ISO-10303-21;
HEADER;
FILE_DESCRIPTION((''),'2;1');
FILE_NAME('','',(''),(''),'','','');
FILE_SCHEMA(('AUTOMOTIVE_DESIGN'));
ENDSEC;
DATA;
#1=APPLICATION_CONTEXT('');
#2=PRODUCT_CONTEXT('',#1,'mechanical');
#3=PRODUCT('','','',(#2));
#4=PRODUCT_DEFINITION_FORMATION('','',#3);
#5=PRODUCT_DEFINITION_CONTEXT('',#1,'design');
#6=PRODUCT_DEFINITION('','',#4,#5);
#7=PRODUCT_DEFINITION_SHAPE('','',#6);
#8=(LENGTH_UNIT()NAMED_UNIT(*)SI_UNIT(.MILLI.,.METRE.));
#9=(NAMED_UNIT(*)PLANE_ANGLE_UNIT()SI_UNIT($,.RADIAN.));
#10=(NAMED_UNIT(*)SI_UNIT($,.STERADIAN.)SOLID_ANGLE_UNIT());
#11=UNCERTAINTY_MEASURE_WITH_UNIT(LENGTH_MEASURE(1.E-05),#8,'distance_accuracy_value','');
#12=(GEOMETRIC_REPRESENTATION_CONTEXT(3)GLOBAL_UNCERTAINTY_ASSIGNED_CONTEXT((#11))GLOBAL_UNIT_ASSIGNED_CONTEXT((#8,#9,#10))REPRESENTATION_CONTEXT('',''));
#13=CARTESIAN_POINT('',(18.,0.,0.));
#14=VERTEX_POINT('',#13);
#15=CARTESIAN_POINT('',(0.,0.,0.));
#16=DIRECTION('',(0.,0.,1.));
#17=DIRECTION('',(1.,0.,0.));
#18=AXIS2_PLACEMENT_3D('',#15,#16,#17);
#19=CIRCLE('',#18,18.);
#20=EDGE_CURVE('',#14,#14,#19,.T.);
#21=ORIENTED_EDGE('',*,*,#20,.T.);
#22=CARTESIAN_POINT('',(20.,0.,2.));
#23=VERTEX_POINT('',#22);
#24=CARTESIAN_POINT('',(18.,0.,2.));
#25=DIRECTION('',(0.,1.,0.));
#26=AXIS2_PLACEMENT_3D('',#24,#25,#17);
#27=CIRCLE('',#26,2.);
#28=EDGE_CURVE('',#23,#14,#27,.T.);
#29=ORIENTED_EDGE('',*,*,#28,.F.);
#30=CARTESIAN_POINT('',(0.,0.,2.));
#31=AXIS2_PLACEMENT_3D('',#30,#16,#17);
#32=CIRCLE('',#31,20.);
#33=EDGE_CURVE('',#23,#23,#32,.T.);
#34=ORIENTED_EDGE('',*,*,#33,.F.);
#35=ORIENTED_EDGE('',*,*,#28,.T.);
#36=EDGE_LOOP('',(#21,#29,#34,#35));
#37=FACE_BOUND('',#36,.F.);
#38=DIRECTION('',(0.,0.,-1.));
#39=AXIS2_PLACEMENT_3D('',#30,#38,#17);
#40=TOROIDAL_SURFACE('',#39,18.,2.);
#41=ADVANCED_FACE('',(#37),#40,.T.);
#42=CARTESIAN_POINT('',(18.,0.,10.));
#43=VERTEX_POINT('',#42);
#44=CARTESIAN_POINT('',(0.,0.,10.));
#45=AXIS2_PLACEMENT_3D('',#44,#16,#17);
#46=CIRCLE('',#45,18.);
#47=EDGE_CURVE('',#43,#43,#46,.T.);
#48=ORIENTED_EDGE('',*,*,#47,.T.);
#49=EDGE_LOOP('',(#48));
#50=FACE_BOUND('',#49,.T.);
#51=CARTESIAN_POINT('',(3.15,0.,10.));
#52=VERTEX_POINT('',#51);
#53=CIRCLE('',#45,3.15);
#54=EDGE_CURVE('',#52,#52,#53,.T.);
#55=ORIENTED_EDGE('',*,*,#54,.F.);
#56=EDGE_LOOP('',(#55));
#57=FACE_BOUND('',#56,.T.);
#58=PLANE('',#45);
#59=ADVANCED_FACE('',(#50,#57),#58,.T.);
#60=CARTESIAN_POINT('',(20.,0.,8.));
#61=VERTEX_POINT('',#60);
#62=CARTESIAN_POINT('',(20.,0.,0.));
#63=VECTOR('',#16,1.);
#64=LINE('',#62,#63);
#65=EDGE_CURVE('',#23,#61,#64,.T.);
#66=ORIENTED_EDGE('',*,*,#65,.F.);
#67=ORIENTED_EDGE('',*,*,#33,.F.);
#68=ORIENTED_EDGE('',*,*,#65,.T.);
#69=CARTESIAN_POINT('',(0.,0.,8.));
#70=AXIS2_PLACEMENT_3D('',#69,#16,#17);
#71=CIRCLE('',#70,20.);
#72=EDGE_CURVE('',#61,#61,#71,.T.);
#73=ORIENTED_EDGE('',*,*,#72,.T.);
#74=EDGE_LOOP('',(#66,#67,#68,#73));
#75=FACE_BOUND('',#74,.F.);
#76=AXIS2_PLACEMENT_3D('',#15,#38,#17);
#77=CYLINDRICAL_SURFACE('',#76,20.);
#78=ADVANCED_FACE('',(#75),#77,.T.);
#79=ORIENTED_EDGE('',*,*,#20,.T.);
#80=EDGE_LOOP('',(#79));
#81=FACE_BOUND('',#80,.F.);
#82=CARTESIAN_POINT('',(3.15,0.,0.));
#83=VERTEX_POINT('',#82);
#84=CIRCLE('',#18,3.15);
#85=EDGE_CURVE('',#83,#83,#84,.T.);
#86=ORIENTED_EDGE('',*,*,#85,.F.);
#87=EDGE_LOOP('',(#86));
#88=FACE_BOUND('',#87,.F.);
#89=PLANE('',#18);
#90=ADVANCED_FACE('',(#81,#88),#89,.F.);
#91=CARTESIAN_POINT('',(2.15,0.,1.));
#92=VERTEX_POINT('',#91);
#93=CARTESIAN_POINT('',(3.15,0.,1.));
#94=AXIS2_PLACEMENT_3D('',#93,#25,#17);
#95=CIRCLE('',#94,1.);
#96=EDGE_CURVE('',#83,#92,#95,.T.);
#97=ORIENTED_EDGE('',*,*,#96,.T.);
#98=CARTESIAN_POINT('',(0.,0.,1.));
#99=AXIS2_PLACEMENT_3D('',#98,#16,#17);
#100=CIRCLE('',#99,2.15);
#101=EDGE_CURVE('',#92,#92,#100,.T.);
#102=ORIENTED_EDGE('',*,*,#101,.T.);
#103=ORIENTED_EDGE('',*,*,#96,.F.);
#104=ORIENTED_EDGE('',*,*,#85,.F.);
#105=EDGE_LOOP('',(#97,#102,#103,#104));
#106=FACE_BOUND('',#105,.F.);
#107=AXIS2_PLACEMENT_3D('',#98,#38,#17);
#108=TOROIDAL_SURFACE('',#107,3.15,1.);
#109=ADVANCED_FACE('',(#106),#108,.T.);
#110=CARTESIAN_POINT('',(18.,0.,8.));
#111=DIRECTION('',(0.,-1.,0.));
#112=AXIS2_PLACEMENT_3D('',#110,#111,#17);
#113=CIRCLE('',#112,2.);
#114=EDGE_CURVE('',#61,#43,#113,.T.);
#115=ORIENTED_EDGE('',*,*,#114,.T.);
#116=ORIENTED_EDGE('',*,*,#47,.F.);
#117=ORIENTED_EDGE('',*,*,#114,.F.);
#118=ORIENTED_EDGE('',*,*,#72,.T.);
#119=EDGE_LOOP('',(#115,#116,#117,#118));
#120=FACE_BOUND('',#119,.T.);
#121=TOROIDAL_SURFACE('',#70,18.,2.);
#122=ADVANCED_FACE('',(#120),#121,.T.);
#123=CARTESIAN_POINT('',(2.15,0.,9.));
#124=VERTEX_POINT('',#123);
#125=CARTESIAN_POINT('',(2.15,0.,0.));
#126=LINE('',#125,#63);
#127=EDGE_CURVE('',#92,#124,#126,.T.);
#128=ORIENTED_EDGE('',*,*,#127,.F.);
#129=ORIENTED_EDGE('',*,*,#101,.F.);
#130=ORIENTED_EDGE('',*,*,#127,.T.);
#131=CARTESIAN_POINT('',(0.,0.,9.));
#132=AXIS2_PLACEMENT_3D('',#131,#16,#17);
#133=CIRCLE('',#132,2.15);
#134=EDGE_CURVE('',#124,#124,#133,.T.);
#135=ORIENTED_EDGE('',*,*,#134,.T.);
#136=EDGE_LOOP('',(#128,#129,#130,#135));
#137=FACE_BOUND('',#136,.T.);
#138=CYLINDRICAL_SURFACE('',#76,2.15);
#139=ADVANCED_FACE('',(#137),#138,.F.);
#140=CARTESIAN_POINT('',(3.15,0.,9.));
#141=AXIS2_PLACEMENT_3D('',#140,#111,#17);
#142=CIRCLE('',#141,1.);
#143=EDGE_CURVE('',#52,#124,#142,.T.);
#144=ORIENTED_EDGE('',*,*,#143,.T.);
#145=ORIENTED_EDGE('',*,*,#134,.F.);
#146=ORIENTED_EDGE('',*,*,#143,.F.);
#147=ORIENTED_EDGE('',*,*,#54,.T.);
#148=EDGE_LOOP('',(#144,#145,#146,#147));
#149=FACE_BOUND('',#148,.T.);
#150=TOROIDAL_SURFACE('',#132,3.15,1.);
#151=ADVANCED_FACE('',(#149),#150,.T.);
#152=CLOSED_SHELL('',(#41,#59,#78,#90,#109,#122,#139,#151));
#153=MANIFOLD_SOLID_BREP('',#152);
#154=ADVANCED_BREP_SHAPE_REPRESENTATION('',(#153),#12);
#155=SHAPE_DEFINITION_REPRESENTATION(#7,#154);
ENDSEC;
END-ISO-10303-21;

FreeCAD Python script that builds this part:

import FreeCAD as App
import Part
import Sketcher
from FreeCAD import Vector
Q = App.Units.Quantity


def edges_at(feature, points):
    """Names of the edges that pass closest to the given points."""
    edges = feature.Shape.Edges
    near = lambda p: min(range(len(edges)), key=lambda i: edges[i].distToShape(Part.Vertex(*p))[0])
    return sorted({f"Edge{near(p) + 1}" for p in points})

doc = App.newDocument("Part")
body = doc.addObject("PartDesign::Body", "Body")

# Sketch on XY plane
sketch1 = body.newObject("Sketcher::SketchObject", "Sketch")
sketch1.AttachmentSupport = (doc.getObject("XY_Plane"), [""])
sketch1.MapMode = "FlatFace"
sketch1.addGeometry([
    Part.Circle(Vector(0, 0, 0), Vector(0, 0, 1), 20),
    Part.Circle(Vector(0, 0, 0), Vector(0, 0, 1), 2.15),
], False)
sketch1.addConstraint([
    Sketcher.Constraint("Coincident", 0, 3, -1, 1),
    Sketcher.Constraint("Coincident", 1, 3, -1, 1),
    Sketcher.Constraint("Diameter", 0, Q("40 mm")),
    Sketcher.Constraint("Diameter", 1, Q("4.3 mm")),
])
pad1 = body.newObject("PartDesign::Pad", "Pad")
pad1.Profile = sketch1
pad1.Length = 10
doc.recompute()

fillet = body.newObject("PartDesign::Fillet", "Fillet")
fillet.Base = (pad1, edges_at(pad1, [(-20, 0, 10), (-20, 0, 0)]))
fillet.Radius = 2
doc.recompute()

fillet2 = body.newObject("PartDesign::Fillet", "Fillet001")
fillet2.Base = (fillet, edges_at(fillet, [(-2.15, 0, 10), (-2.15, 0, 0)]))
fillet2.Radius = 1

doc.recompute()
